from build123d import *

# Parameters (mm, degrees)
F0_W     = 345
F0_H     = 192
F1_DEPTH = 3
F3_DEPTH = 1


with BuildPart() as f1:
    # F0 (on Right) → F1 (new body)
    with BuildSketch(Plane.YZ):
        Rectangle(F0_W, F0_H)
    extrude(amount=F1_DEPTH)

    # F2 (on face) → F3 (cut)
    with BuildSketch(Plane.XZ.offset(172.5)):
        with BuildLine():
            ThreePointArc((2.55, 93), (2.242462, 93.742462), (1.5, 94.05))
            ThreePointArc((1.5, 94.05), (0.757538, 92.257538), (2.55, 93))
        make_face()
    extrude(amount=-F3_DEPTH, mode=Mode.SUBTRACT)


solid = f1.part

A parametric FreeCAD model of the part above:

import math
import FreeCAD as App
import Part
import Sketcher

doc = App.newDocument("Part")
body = doc.addObject("PartDesign::Body", "Body")

# Sketch on YZ plane
sketch1 = body.newObject("Sketcher::SketchObject", "Sketch")
sketch1.AttachmentSupport = (doc.getObject("YZ_Plane"), [""])
sketch1.MapMode = "FlatFace"
sketch1.addGeometry(Part.LineSegment(App.Vector(-172.5, 96, 0), App.Vector(-172.5, -96, 0)), False)
sketch1.addGeometry(Part.LineSegment(App.Vector(-172.5, -96, 0), App.Vector(172.5, -96, 0)), False)
sketch1.addGeometry(Part.LineSegment(App.Vector(172.5, -96, 0), App.Vector(172.5, 96, 0)), False)
sketch1.addGeometry(Part.LineSegment(App.Vector(172.5, 96, 0), App.Vector(-172.5, 96, 0)), False)
sketch1.addConstraint(Sketcher.Constraint("Coincident", 0, 2, 1, 1))
sketch1.addConstraint(Sketcher.Constraint("Coincident", 1, 2, 2, 1))
sketch1.addConstraint(Sketcher.Constraint("Coincident", 2, 2, 3, 1))
sketch1.addConstraint(Sketcher.Constraint("Coincident", 3, 2, 0, 1))
sketch1.addConstraint(Sketcher.Constraint("Vertical", 0))
sketch1.addConstraint(Sketcher.Constraint("Horizontal", 1))
sketch1.addConstraint(Sketcher.Constraint("Vertical", 2))
sketch1.addConstraint(Sketcher.Constraint("Horizontal", 3))
sketch1.addConstraint(Sketcher.Constraint("Symmetric", 0, 2, 2, 2, -1, 1))
sketch1.addConstraint(Sketcher.Constraint("DistanceX", 1, 1, 1, 2, 345.0))
sketch1.addConstraint(Sketcher.Constraint("DistanceY", 0, 2, 0, 1, 192.0))
pad1 = body.newObject("PartDesign::Pad", "Pad")
pad1.Profile = sketch1
pad1.Length = 3

# Sketch on XZ plane
sketch2 = body.newObject("Sketcher::SketchObject", "Sketch001")
sketch2.AttachmentSupport = (doc.getObject("XZ_Plane"), [""])
sketch2.MapMode = "FlatFace"
sketch2.AttachmentOffset = App.Placement(App.Vector(0, 0, 172.5), App.Rotation())
sketch2.addGeometry(Part.ArcOfCircle(Part.Circle(App.Vector(1.5, 93, 0), App.Vector(0, 0, 1), 1.05), math.radians(0.000022), math.radians(89.999978)), False)
sketch2.addGeometry(Part.ArcOfCircle(Part.Circle(App.Vector(1.5, 93, 0), App.Vector(0, 0, 1), 1.05), math.radians(90.000004), math.radians(359.999996)), False)
sketch2.addConstraint(Sketcher.Constraint("Tangent", 0, 1, 1, 2))
sketch2.addConstraint(Sketcher.Constraint("Coincident", 1, 1, 0, 2))
sketch2.addConstraint(Sketcher.Constraint("Horizontal", 1, 3, 0, 1))
sketch2.addConstraint(Sketcher.Constraint("Vertical", 0, 3, 1, 1))
sketch2.addConstraint(Sketcher.Constraint("Radius", 0, 1.05))
sketch2.addConstraint(Sketcher.Constraint("DistanceY", -1, 1, 0, 3, 93.0))
sketch2.addConstraint(Sketcher.Constraint("DistanceX", -1, 1, 0, 3, 1.5))
pocket1 = body.newObject("PartDesign::Pocket", "Pocket")
pocket1.Profile = sketch2
pocket1.Length = 1

doc.recompute()
